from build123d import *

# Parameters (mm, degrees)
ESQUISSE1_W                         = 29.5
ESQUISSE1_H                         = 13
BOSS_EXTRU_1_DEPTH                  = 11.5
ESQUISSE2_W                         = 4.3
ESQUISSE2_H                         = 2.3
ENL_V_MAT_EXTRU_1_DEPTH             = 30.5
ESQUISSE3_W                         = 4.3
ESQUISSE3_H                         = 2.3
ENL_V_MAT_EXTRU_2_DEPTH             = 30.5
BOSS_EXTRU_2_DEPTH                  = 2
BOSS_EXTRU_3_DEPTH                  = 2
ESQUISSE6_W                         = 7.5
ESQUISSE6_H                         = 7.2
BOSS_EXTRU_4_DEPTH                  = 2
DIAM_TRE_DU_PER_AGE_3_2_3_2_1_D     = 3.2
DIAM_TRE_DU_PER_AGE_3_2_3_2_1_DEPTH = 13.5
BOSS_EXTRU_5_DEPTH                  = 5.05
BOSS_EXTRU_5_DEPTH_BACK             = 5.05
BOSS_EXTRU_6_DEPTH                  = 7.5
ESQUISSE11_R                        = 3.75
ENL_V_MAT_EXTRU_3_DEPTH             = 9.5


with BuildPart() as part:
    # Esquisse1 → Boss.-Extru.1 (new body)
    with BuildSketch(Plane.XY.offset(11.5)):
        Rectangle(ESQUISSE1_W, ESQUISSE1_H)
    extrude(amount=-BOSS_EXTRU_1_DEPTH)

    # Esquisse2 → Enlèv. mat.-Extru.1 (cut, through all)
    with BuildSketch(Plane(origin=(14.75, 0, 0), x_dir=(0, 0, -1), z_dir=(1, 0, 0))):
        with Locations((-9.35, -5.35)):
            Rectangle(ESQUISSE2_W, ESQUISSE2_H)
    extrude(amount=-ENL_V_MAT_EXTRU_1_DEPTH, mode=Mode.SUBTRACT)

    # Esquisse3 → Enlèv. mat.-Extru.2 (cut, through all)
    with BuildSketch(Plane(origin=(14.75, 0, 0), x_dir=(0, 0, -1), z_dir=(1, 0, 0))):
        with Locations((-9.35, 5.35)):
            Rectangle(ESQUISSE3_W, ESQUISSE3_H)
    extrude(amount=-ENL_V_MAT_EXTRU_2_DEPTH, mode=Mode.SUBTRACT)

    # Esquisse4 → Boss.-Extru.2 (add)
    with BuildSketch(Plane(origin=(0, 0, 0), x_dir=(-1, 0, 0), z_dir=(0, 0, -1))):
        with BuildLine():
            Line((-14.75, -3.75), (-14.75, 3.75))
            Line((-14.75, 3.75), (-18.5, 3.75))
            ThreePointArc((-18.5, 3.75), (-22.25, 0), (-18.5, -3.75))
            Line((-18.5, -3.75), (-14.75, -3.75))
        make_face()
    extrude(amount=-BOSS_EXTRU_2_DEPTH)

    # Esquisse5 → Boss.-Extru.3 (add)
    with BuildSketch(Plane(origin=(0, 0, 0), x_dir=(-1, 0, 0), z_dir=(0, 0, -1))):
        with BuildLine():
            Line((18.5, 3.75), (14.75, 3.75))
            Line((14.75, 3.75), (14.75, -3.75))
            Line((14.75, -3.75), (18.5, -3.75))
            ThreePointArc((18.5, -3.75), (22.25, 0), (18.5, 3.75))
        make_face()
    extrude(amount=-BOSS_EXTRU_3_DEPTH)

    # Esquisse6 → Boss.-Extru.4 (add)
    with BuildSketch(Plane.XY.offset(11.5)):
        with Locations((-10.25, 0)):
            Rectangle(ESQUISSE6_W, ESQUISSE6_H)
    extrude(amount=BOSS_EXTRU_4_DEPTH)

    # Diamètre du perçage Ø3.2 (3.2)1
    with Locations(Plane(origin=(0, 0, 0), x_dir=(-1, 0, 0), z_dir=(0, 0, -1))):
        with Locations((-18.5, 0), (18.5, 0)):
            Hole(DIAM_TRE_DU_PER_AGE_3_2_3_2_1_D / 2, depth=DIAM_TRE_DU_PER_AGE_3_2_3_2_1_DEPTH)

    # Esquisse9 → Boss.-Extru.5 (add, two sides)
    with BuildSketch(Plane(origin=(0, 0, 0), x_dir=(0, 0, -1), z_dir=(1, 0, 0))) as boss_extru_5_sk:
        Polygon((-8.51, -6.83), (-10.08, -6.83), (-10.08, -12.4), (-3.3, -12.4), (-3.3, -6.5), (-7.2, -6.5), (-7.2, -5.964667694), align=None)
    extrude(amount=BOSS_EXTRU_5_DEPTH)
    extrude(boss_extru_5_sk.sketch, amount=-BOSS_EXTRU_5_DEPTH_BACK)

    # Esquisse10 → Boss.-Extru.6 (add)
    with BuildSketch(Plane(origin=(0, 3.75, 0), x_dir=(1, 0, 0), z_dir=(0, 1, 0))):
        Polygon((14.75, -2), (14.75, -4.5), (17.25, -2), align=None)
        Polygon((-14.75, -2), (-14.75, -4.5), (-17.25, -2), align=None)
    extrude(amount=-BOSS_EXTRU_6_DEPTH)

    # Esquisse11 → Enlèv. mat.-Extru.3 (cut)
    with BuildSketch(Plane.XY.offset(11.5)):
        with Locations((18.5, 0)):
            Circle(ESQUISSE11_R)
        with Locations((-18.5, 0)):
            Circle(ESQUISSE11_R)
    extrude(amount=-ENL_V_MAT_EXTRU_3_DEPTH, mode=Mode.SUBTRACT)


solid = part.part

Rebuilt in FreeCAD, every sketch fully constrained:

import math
import FreeCAD as App
import Part
import Sketcher
Q = App.Units.Quantity

doc = App.newDocument("Part")
body = doc.addObject("PartDesign::Body", "Body")

# Sketch on XY plane
sketch1 = body.newObject("Sketcher::SketchObject", "Sketch")
sketch1.AttachmentSupport = (doc.getObject("XY_Plane"), [""])
sketch1.MapMode = "FlatFace"
sketch1.AttachmentOffset = App.Placement(App.Vector(0, 0, 11.5), App.Rotation())
sketch1.addGeometry([
    Part.LineSegment(App.Vector(-15, 6, 0), App.Vector(-15, -6, 0)),
    Part.LineSegment(App.Vector(-15, -6, 0), App.Vector(15, -6, 0)),
    Part.LineSegment(App.Vector(15, -6, 0), App.Vector(15, 6, 0)),
    Part.LineSegment(App.Vector(15, 6, 0), App.Vector(-15, 6, 0)),
], False)
sketch1.addConstraint([
    Sketcher.Constraint("Coincident", 0, 2, 1, 1),
    Sketcher.Constraint("Coincident", 1, 2, 2, 1),
    Sketcher.Constraint("Coincident", 2, 2, 3, 1),
    Sketcher.Constraint("Coincident", 3, 2, 0, 1),
    Sketcher.Constraint("Vertical", 0),
    Sketcher.Constraint("Horizontal", 1),
    Sketcher.Constraint("Vertical", 2),
    Sketcher.Constraint("Horizontal", 3),
    Sketcher.Constraint("Symmetric", 0, 2, 2, 2, -1, 1),
    Sketcher.Constraint("DistanceY", 0, 2, 0, 1, Q("13 mm")),
    Sketcher.Constraint("DistanceX", 1, 1, 1, 2, Q("29.5 mm")),
])
pad1 = body.newObject("PartDesign::Pad", "Pad")
pad1.Profile = sketch1
pad1.Length = 11.5
pad1.Reversed = True

# Sketch on YZ plane
sketch2 = body.newObject("Sketcher::SketchObject", "Sketch001")
sketch2.AttachmentSupport = (doc.getObject("YZ_Plane"), [""])
sketch2.MapMode = "FlatFace"
sketch2.AttachmentOffset = App.Placement(App.Vector(0, 0, 14.75), App.Rotation())
sketch2.addGeometry([
    Part.LineSegment(App.Vector(-4.2, 11.5, 0), App.Vector(-6.5, 11.5, 0)),
    Part.LineSegment(App.Vector(-6.5, 11.5, 0), App.Vector(-6.5, 7.2, 0)),
    Part.LineSegment(App.Vector(-6.5, 7.2, 0), App.Vector(-4.2, 7.2, 0)),
    Part.LineSegment(App.Vector(-4.2, 7.2, 0), App.Vector(-4.2, 11.5, 0)),
], False)
sketch2.addConstraint([
    Sketcher.Constraint("Coincident", 0, 2, 1, 1),
    Sketcher.Constraint("Coincident", 1, 2, 2, 1),
    Sketcher.Constraint("Coincident", 2, 2, 3, 1),
    Sketcher.Constraint("Coincident", 3, 2, 0, 1),
    Sketcher.Constraint("Horizontal", 0),
    Sketcher.Constraint("Vertical", 1),
    Sketcher.Constraint("Horizontal", 2),
    Sketcher.Constraint("Vertical", 3),
    Sketcher.Constraint("DistanceX", 0, 2, 0, 1, Q("2.3 mm")),
    Sketcher.Constraint("DistanceY", 1, 2, 1, 1, Q("4.3 mm")),
    Sketcher.Constraint("DistanceX", 0, 2, -1, 1, Q("6.5 mm")),
    Sketcher.Constraint("DistanceY", -1, 1, 0, 2, Q("11.5 mm")),
])
pocket1 = body.newObject("PartDesign::Pocket", "Pocket")
pocket1.Profile = sketch2
pocket1.Type = "ThroughAll"

# Sketch on YZ plane
sketch3 = body.newObject("Sketcher::SketchObject", "Sketch002")
sketch3.AttachmentSupport = (doc.getObject("YZ_Plane"), [""])
sketch3.MapMode = "FlatFace"
sketch3.AttachmentOffset = App.Placement(App.Vector(0, 0, 14.75), App.Rotation())
sketch3.addGeometry([
    Part.LineSegment(App.Vector(6.5, 11.5, 0), App.Vector(4.2, 11.5, 0)),
    Part.LineSegment(App.Vector(4.2, 11.5, 0), App.Vector(4.2, 7.2, 0)),
    Part.LineSegment(App.Vector(4.2, 7.2, 0), App.Vector(6.5, 7.2, 0)),
    Part.LineSegment(App.Vector(6.5, 7.2, 0), App.Vector(6.5, 11.5, 0)),
], False)
sketch3.addConstraint([
    Sketcher.Constraint("Coincident", 0, 2, 1, 1),
    Sketcher.Constraint("Coincident", 1, 2, 2, 1),
    Sketcher.Constraint("Coincident", 2, 2, 3, 1),
    Sketcher.Constraint("Coincident", 3, 2, 0, 1),
    Sketcher.Constraint("Horizontal", 0),
    Sketcher.Constraint("Vertical", 1),
    Sketcher.Constraint("Horizontal", 2),
    Sketcher.Constraint("Vertical", 3),
    Sketcher.Constraint("DistanceX", 0, 2, 0, 1, Q("2.3 mm")),
    Sketcher.Constraint("DistanceY", 1, 2, 1, 1, Q("4.3 mm")),
    Sketcher.Constraint("DistanceX", -1, 1, 0, 2, Q("4.2 mm")),
    Sketcher.Constraint("DistanceY", -1, 1, 0, 2, Q("11.5 mm")),
])
pocket2 = body.newObject("PartDesign::Pocket", "Pocket001")
pocket2.Profile = sketch3
pocket2.Type = "ThroughAll"

# Sketch on XY plane
sketch4 = body.newObject("Sketcher::SketchObject", "Sketch003")
sketch4.AttachmentSupport = (doc.getObject("XY_Plane"), [""])
sketch4.MapMode = "FlatFace"
sketch4.addGeometry([
    Part.LineSegment(App.Vector(14.8, -3.8, 0), App.Vector(14.8, 3.8, 0)),
    Part.LineSegment(App.Vector(14.8, 3.8, 0), App.Vector(18.5, 3.8, 0)),
    Part.ArcOfCircle(Part.Circle(App.Vector(18.5, 0, 0), App.Vector(0, 0, 1), 3.8), math.radians(-90), math.radians(90)),
    Part.LineSegment(App.Vector(18.5, -3.8, 0), App.Vector(14.8, -3.8, 0)),
], False)
sketch4.addConstraint([
    Sketcher.Constraint("Coincident", 0, 2, 1, 1),
    Sketcher.Constraint("Tangent", 1, 2, 2, 2),
    Sketcher.Constraint("Tangent", 2, 1, 3, 1),
    Sketcher.Constraint("Coincident", 3, 2, 0, 1),
    Sketcher.Constraint("Vertical", 0),
    Sketcher.Constraint("Horizontal", 1),
    Sketcher.Constraint("Horizontal", 3),
    Sketcher.Constraint("PointOnObject", 2, 3, -1),
    Sketcher.Constraint("Radius", 2, Q("3.75 mm")),
    Sketcher.Constraint("DistanceX", 1, 1, 1, 2, Q("3.75 mm")),
    Sketcher.Constraint("DistanceX", -1, 1, 2, 3, Q("18.5 mm")),
])
pad2 = body.newObject("PartDesign::Pad", "Pad001")
pad2.Profile = sketch4
pad2.Length = 2

# Sketch on XY plane
sketch5 = body.newObject("Sketcher::SketchObject", "Sketch004")
sketch5.AttachmentSupport = (doc.getObject("XY_Plane"), [""])
sketch5.MapMode = "FlatFace"
sketch5.addGeometry([
    Part.LineSegment(App.Vector(-18.5, 3.8, 0), App.Vector(-14.8, 3.8, 0)),
    Part.LineSegment(App.Vector(-14.8, 3.8, 0), App.Vector(-14.8, -3.8, 0)),
    Part.LineSegment(App.Vector(-14.8, -3.8, 0), App.Vector(-18.5, -3.8, 0)),
    Part.ArcOfCircle(Part.Circle(App.Vector(-18.5, 0, 0), App.Vector(0, 0, 1), 3.8), math.radians(90), math.radians(270)),
], False)
sketch5.addConstraint([
    Sketcher.Constraint("Coincident", 0, 2, 1, 1),
    Sketcher.Constraint("Coincident", 1, 2, 2, 1),
    Sketcher.Constraint("Tangent", 2, 2, 3, 2),
    Sketcher.Constraint("Tangent", 3, 1, 0, 1),
    Sketcher.Constraint("Horizontal", 0),
    Sketcher.Constraint("Vertical", 1),
    Sketcher.Constraint("Horizontal", 2),
    Sketcher.Constraint("PointOnObject", 3, 3, -1),
    Sketcher.Constraint("Radius", 3, Q("3.75 mm")),
    Sketcher.Constraint("DistanceX", 0, 1, 0, 2, Q("3.75 mm")),
    Sketcher.Constraint("DistanceX", 3, 3, -1, 1, Q("18.5 mm")),
])
pad3 = body.newObject("PartDesign::Pad", "Pad002")
pad3.Profile = sketch5
pad3.Length = 2

# Sketch on XY plane
sketch6 = body.newObject("Sketcher::SketchObject", "Sketch005")
sketch6.AttachmentSupport = (doc.getObject("XY_Plane"), [""])
sketch6.MapMode = "FlatFace"
sketch6.AttachmentOffset = App.Placement(App.Vector(0, 0, 11.5), App.Rotation())
sketch6.addGeometry([
    Part.LineSegment(App.Vector(-14, 4, 0), App.Vector(-14, -4, 0)),
    Part.LineSegment(App.Vector(-14, -4, 0), App.Vector(-6, -4, 0)),
    Part.LineSegment(App.Vector(-6, -4, 0), App.Vector(-6, 4, 0)),
    Part.LineSegment(App.Vector(-6, 4, 0), App.Vector(-14, 4, 0)),
], False)
sketch6.addConstraint([
    Sketcher.Constraint("Coincident", 0, 2, 1, 1),
    Sketcher.Constraint("Coincident", 1, 2, 2, 1),
    Sketcher.Constraint("Coincident", 2, 2, 3, 1),
    Sketcher.Constraint("Coincident", 3, 2, 0, 1),
    Sketcher.Constraint("Vertical", 0),
    Sketcher.Constraint("Horizontal", 1),
    Sketcher.Constraint("Vertical", 2),
    Sketcher.Constraint("Horizontal", 3),
    Sketcher.Constraint("DistanceX", 1, 1, 1, 2, Q("7.5 mm")),
    Sketcher.Constraint("DistanceY", 0, 2, 0, 1, Q("7.2 mm")),
    Sketcher.Constraint("DistanceX", 0, 2, -1, 1, Q("14 mm")),
    Sketcher.Constraint("DistanceY", 0, 2, -1, 1, Q("3.6 mm")),
])
pad4 = body.newObject("PartDesign::Pad", "Pad003")
pad4.Profile = sketch6
pad4.Length = 2

# Sketch on XY plane
sketch7 = body.newObject("Sketcher::SketchObject", "Sketch006")
sketch7.AttachmentSupport = (doc.getObject("XY_Plane"), [""])
sketch7.MapMode = "FlatFace"
sketch7.addGeometry([
    Part.Circle(App.Vector(18.5, 0, 0), App.Vector(0, 0, 1), 1.6),
    Part.Circle(App.Vector(-18.5, 0, 0), App.Vector(0, 0, 1), 1.6),
], False)
sketch7.addConstraint([
    Sketcher.Constraint("Equal", 0, 1),
    Sketcher.Constraint("Symmetric", 0, 3, 1, 3, -1, 1),
    Sketcher.Constraint("PointOnObject", 0, 3, -1),
    Sketcher.Constraint("Diameter", 0, Q("3.2 mm")),
    Sketcher.Constraint("DistanceX", 1, 3, 0, 3, Q("37 mm")),
])
doc.recompute()
hole = body.newObject("PartDesign::Hole", "Hole")
hole.Profile = sketch7
hole.ThreadType = "None"
hole.Diameter = 3.2
hole.DepthType = "Dimension"
hole.Depth = 13.5
hole.DrillPoint = "Flat"
hole.Reversed = True

# Sketch on YZ plane
sketch8 = body.newObject("Sketcher::SketchObject", "Sketch007")
sketch8.AttachmentSupport = (doc.getObject("YZ_Plane"), [""])
sketch8.MapMode = "FlatFace"
sketch8.addGeometry([
    Part.LineSegment(App.Vector(-6.8, 8.5, 0), App.Vector(-6.8, 10.1, 0)),  # 0
    Part.LineSegment(App.Vector(-6.8, 10.1, 0), App.Vector(-12.4, 10.1, 0)),  # 1
    Part.LineSegment(App.Vector(-12.4, 10.1, 0), App.Vector(-12.4, 3.3, 0)),  # 2
    Part.LineSegment(App.Vector(-12.4, 3.3, 0), App.Vector(-6.5, 3.3, 0)),  # 3
    Part.LineSegment(App.Vector(-6.5, 3.3, 0), App.Vector(-6.5, 7.2, 0)),  # 4
    Part.LineSegment(App.Vector(-6.5, 7.2, 0), App.Vector(-6, 7.2, 0)),  # 5
    Part.LineSegment(App.Vector(-6, 7.2, 0), App.Vector(-6.8, 8.5, 0)),  # 6
], False)
sketch8.addConstraint([
    Sketcher.Constraint("Coincident", 0, 2, 1, 1),
    Sketcher.Constraint("Coincident", 1, 2, 2, 1),
    Sketcher.Constraint("Coincident", 2, 2, 3, 1),
    Sketcher.Constraint("Coincident", 3, 2, 4, 1),
    Sketcher.Constraint("Coincident", 4, 2, 5, 1),
    Sketcher.Constraint("Coincident", 5, 2, 6, 1),
    Sketcher.Constraint("Coincident", 6, 2, 0, 1),
    Sketcher.Constraint("Vertical", 0),
    Sketcher.Constraint("Horizontal", 1),
    Sketcher.Constraint("Vertical", 2),
    Sketcher.Constraint("Horizontal", 3),
    Sketcher.Constraint("Vertical", 4),
    Sketcher.Constraint("Horizontal", 5),
    Sketcher.Constraint("DistanceX", 3, 1, 3, 2, Q("5.9 mm")),
    Sketcher.Constraint("DistanceY", 4, 1, 4, 2, Q("3.9 mm")),
    Sketcher.Constraint("DistanceX", 1, 2, 1, 1, Q("5.57 mm")),
    Sketcher.Constraint("DistanceY", 0, 1, 0, 2, Q("1.57 mm")),
    Sketcher.Constraint("DistanceY", 2, 2, 2, 1, Q("6.78 mm")),
    Sketcher.Constraint("DistanceX", 1, 2, -1, 1, Q("12.4 mm")),
    Sketcher.Constraint("DistanceY", -1, 1, 2, 2, Q("3.3 mm")),
    Sketcher.Constraint("Distance", 6, Q("1.57 mm")),
])
pad5 = body.newObject("PartDesign::Pad", "Pad004")
pad5.Profile = sketch8
pad5.Type = "TwoLengths"
pad5.Length = 5.05
pad5.Length2 = 5.05

# Sketch on XZ plane
sketch9 = body.newObject("Sketcher::SketchObject", "Sketch008")
sketch9.AttachmentSupport = (doc.getObject("XZ_Plane"), [""])
sketch9.MapMode = "FlatFace"
sketch9.AttachmentOffset = App.Placement(App.Vector(0, 0, -3.75), App.Rotation())
sketch9.addGeometry([
    Part.LineSegment(App.Vector(14.8, 2, 0), App.Vector(14.8, 4.5, 0)),  # 0
    Part.LineSegment(App.Vector(14.8, 4.5, 0), App.Vector(17.2, 2, 0)),  # 1
    Part.LineSegment(App.Vector(17.2, 2, 0), App.Vector(14.8, 2, 0)),  # 2
    Part.LineSegment(App.Vector(-14.8, 4.5, 0), App.Vector(-14.8, 2, 0)),  # 3
    Part.LineSegment(App.Vector(-14.8, 2, 0), App.Vector(-17.2, 2, 0)),  # 4
    Part.LineSegment(App.Vector(-17.2, 2, 0), App.Vector(-14.8, 4.5, 0)),  # 5
], False)
sketch9.addConstraint([
    Sketcher.Constraint("Coincident", 0, 2, 1, 1),
    Sketcher.Constraint("Coincident", 1, 2, 2, 1),
    Sketcher.Constraint("Coincident", 2, 2, 0, 1),
    Sketcher.Constraint("Coincident", 3, 2, 4, 1),
    Sketcher.Constraint("Coincident", 4, 2, 5, 1),
    Sketcher.Constraint("Coincident", 5, 2, 3, 1),
    Sketcher.Constraint("Vertical", 0),
    Sketcher.Constraint("Horizontal", 2),
    Sketcher.Constraint("Vertical", 3),
    Sketcher.Constraint("Horizontal", 4),
    Sketcher.Constraint("Symmetric", 2, 2, 3, 2, -2),
    Sketcher.Constraint("Perpendicular", 1, 5),
    Sketcher.Constraint("Horizontal", 0, 2, 5, 2),
    Sketcher.Constraint("Equal", 2, 4),
    Sketcher.Constraint("DistanceX", 2, 2, 2, 1, Q("2.5 mm")),
    Sketcher.Constraint("DistanceY", -1, 1, 1, 2, Q("2 mm")),
    Sketcher.Constraint("DistanceX", 3, 2, 1, 2, Q("32 mm")),
])
pad6 = body.newObject("PartDesign::Pad", "Pad005")
pad6.Profile = sketch9
pad6.Length = 7.5

# Sketch on XY plane
sketch10 = body.newObject("Sketcher::SketchObject", "Sketch009")
sketch10.AttachmentSupport = (doc.getObject("XY_Plane"), [""])
sketch10.MapMode = "FlatFace"
sketch10.AttachmentOffset = App.Placement(App.Vector(0, 0, 11.5), App.Rotation())
sketch10.addGeometry([
    Part.Circle(App.Vector(18.5, 0, 0), App.Vector(0, 0, 1), 3.8),
    Part.Circle(App.Vector(-18.5, 0, 0), App.Vector(0, 0, 1), 3.8),
], False)
sketch10.addConstraint([
    Sketcher.Constraint("Equal", 0, 1),
    Sketcher.Constraint("Symmetric", 0, 3, 1, 3, -1, 1),
    Sketcher.Constraint("PointOnObject", 0, 3, -1),
    Sketcher.Constraint("Diameter", 0, Q("7.5 mm")),
    Sketcher.Constraint("DistanceX", 1, 3, 0, 3, Q("37 mm")),
])
pocket3 = body.newObject("PartDesign::Pocket", "Pocket002")
pocket3.Profile = sketch10
pocket3.Length = 9.5

doc.recompute()
